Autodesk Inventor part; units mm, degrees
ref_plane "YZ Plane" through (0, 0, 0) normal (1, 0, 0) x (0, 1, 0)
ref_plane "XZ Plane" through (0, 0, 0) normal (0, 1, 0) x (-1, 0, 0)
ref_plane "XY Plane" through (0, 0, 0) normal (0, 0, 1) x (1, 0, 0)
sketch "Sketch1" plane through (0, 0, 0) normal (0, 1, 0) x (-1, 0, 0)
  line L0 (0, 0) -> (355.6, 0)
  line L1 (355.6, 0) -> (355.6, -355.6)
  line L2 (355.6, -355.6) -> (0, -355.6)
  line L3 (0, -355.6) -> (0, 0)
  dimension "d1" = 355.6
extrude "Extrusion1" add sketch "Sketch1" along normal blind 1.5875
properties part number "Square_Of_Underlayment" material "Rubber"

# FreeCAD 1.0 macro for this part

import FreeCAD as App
import Part
import Sketcher

V = App.Vector
Q = App.Units.Quantity


def add_polygon(sketch, points):
    """Adds a closed chain of lines whose ends are joined by coincident constraints."""
    first, n = sketch.GeometryCount, len(points)
    for a, b in zip(points, points[1:] + points[:1]):
        sketch.addGeometry(Part.LineSegment(App.Vector(*a, 0), App.Vector(*b, 0)), False)
    for i in range(n):
        sketch.addConstraint(Sketcher.Constraint("Coincident", first + i, 2, first + (i + 1) % n, 1))

doc = App.newDocument("Part")
body = doc.addObject("PartDesign::Body", "Body")

# Sketch on XZ plane
sketch1 = body.newObject("Sketcher::SketchObject", "Sketch")
sketch1.AttachmentSupport = (doc.getObject("XZ_Plane"), [""])
sketch1.MapMode = "FlatFace"
add_polygon(sketch1, [(-356, 0), (0, 0), (0, -356), (-356, -356)])  # lines 0-3
sketch1.addConstraint(Sketcher.Constraint("Horizontal", 0))
sketch1.addConstraint(Sketcher.Constraint("Vertical", 1))
sketch1.addConstraint(Sketcher.Constraint("Horizontal", 2))
sketch1.addConstraint(Sketcher.Constraint("Vertical", 3))
sketch1.addConstraint(Sketcher.Constraint("Coincident", 0, 2, -1, 1))
sketch1.addConstraint(Sketcher.Constraint("Equal", 2, 1))
sketch1.addConstraint(Sketcher.Constraint("DistanceX", 0, 1, 0, 2, Q("14 in")))
pad1 = body.newObject("PartDesign::Pad", "Pad")
pad1.Profile = sketch1
pad1.Length = Q("0.0625 in")
pad1.Reversed = True

doc.recompute()
